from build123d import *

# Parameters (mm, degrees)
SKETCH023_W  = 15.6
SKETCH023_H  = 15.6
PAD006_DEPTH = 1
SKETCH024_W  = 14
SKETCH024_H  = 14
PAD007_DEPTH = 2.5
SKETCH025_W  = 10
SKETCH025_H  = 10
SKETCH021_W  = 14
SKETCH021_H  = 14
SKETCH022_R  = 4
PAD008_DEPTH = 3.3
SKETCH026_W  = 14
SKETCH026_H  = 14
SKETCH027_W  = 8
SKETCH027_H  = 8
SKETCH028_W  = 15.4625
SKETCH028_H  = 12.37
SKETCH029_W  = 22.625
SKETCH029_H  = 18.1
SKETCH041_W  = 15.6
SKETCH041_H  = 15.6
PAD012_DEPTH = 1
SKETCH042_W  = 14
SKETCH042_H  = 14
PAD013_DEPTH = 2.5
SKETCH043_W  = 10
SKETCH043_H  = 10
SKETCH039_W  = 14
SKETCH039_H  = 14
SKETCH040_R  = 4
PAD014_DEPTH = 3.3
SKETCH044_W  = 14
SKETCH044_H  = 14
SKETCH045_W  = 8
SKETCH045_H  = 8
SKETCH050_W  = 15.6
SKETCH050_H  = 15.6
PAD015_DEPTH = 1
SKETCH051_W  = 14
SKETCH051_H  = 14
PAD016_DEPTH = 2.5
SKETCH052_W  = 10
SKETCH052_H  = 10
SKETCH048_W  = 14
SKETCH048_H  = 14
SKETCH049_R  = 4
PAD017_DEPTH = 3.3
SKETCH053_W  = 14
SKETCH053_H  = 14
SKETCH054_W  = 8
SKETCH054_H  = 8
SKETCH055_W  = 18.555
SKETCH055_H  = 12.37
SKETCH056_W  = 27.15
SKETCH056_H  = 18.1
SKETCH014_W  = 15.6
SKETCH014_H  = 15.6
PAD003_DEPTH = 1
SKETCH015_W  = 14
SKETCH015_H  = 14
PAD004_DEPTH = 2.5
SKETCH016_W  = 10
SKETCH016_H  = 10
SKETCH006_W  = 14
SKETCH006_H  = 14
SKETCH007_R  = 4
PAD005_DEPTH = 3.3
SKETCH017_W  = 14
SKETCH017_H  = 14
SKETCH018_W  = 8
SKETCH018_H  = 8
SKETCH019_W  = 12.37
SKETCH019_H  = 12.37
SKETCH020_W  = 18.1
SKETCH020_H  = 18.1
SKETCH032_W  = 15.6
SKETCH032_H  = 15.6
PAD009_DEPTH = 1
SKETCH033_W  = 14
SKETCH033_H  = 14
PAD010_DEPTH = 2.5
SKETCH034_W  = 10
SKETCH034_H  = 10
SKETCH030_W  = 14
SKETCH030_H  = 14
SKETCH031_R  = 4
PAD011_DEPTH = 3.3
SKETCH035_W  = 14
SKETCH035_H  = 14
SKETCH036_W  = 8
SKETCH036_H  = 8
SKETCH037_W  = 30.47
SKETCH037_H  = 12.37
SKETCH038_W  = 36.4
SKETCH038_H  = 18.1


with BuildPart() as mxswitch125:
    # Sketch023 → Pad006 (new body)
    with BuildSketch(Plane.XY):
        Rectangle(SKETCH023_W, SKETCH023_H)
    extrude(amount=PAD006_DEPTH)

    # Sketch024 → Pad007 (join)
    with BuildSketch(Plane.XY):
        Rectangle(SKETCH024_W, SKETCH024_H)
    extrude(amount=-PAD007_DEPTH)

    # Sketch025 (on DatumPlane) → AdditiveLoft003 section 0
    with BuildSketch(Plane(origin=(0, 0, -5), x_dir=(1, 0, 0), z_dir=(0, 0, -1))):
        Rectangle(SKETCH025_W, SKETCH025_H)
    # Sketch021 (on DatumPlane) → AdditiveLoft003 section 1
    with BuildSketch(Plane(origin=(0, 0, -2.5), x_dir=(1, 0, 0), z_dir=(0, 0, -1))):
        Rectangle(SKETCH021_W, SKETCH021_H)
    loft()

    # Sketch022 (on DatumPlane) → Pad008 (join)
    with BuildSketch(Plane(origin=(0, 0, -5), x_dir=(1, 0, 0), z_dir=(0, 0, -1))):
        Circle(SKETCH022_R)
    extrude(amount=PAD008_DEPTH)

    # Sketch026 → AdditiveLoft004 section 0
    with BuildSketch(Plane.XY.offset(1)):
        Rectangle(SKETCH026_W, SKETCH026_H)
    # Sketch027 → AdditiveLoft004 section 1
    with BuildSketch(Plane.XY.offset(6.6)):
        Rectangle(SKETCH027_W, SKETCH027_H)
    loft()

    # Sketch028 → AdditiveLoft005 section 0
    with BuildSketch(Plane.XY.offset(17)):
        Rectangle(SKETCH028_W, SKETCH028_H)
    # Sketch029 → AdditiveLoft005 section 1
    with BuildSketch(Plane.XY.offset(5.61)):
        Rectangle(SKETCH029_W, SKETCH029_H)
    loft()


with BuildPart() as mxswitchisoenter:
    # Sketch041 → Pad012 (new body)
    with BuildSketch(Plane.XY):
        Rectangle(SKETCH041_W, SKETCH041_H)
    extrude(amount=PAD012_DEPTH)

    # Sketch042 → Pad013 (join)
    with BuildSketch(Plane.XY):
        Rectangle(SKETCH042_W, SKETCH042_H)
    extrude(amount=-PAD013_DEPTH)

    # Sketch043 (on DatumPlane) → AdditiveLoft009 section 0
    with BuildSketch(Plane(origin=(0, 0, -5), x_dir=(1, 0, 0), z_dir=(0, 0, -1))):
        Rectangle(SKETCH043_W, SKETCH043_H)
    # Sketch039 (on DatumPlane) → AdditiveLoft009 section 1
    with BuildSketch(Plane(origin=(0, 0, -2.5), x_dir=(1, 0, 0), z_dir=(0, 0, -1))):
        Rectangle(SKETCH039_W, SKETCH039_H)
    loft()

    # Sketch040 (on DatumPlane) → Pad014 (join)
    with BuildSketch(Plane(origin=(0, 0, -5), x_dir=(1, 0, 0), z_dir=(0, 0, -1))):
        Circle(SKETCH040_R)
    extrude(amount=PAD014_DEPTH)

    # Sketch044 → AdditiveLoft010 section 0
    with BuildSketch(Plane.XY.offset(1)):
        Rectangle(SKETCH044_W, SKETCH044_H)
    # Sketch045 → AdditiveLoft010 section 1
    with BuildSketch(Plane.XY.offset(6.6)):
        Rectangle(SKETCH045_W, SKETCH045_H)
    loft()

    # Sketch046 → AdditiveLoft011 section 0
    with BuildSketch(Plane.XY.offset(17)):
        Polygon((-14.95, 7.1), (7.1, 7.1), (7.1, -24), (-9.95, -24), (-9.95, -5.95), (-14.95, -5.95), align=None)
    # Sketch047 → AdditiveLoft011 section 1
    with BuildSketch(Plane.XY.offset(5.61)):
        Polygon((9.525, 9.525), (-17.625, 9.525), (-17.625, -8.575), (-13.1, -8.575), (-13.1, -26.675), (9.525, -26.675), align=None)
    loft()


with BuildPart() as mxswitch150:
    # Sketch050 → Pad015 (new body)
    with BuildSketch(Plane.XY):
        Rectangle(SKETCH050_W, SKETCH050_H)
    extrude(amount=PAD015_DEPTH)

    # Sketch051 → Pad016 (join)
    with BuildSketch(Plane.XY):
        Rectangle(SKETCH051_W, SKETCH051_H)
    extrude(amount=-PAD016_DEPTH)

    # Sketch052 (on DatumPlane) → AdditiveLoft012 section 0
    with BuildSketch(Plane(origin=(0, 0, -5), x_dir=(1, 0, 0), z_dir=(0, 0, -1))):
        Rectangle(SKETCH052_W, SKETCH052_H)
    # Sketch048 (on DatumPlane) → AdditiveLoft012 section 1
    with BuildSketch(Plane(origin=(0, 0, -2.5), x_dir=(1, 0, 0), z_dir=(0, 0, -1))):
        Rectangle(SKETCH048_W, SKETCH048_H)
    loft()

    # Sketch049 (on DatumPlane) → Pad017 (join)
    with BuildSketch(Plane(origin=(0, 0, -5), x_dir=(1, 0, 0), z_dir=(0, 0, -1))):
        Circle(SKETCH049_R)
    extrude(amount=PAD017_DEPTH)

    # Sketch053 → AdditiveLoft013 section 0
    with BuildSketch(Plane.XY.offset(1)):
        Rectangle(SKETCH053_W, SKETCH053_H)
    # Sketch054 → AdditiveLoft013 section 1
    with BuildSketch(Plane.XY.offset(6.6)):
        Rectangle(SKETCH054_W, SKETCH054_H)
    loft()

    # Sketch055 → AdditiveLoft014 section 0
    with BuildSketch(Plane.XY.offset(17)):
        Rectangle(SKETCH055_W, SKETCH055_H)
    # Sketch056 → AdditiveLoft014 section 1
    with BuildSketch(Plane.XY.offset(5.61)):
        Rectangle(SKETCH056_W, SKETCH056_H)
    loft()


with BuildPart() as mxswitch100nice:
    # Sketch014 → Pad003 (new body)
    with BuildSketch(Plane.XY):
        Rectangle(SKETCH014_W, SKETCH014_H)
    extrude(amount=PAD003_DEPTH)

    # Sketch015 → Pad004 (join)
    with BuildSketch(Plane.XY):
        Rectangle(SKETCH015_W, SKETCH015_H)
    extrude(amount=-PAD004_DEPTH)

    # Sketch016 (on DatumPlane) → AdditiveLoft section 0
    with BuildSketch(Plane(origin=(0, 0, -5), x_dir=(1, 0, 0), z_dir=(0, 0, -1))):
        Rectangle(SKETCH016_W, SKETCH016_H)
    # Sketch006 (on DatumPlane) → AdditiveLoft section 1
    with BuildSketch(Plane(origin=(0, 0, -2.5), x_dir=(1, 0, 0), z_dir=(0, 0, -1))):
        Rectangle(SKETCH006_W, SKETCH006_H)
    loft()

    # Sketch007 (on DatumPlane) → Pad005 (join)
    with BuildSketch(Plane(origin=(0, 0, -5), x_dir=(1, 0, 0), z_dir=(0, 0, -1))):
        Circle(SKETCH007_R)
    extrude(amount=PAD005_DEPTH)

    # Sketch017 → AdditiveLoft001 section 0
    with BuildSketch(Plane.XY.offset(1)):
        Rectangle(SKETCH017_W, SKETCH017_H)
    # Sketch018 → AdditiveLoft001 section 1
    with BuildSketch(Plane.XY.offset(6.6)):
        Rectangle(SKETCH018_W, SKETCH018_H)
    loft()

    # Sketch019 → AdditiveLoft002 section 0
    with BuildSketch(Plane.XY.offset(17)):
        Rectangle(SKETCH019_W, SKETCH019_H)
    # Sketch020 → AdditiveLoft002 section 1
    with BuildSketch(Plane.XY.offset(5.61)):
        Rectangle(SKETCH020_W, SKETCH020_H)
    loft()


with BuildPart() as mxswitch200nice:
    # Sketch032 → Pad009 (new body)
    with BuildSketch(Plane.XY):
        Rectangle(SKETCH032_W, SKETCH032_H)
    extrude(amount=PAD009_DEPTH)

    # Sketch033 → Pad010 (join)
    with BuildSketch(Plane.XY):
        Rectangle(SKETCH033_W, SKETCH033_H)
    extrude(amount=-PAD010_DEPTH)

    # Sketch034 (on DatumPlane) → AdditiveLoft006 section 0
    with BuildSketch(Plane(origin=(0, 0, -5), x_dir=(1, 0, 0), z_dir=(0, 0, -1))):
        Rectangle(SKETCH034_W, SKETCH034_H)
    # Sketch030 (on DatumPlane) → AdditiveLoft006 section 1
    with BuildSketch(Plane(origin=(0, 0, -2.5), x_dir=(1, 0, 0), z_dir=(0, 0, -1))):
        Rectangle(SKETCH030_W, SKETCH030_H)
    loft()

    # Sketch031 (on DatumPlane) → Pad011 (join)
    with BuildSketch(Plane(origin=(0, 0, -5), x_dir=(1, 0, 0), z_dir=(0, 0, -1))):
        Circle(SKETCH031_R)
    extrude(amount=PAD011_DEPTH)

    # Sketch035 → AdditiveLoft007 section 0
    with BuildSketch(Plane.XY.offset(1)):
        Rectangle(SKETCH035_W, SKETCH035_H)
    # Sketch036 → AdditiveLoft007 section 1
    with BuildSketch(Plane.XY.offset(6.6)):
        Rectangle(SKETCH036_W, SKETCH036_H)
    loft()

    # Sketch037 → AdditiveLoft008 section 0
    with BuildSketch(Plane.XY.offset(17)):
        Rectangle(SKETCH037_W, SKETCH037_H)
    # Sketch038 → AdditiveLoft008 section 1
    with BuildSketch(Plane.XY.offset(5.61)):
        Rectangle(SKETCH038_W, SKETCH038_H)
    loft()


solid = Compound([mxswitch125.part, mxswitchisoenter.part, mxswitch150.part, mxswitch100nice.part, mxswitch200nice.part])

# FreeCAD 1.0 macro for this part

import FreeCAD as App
import Part
import Sketcher
from FreeCAD import Vector


def add_polygon(sketch, points):
    """Adds a closed chain of lines whose ends are joined by coincident constraints."""
    first, n = sketch.GeometryCount, len(points)
    for a, b in zip(points, points[1:] + points[:1]):
        sketch.addGeometry(Part.LineSegment(App.Vector(*a, 0), App.Vector(*b, 0)), False)
    for i in range(n):
        sketch.addConstraint(Sketcher.Constraint("Coincident", first + i, 2, first + (i + 1) % n, 1))

doc = App.newDocument("Part")
body = doc.addObject("PartDesign::Body", "Body")

sketch1 = body.newObject("Sketcher::SketchObject", "Sketch")
sketch1.AttachmentSupport = (doc.getObject("XY_Plane"), [""])
sketch1.MapMode = "FlatFace"
add_polygon(sketch1, [(-8, 8), (-8, -8), (8, -8), (8, 8)])
sketch1.addConstraint(Sketcher.Constraint("Vertical", 0))
sketch1.addConstraint(Sketcher.Constraint("Horizontal", 1))
sketch1.addConstraint(Sketcher.Constraint("Vertical", 2))
sketch1.addConstraint(Sketcher.Constraint("Horizontal", 3))
sketch1.addConstraint(Sketcher.Constraint("Symmetric", 0, 2, 2, 2, -1, 1))
sketch1.addConstraint(Sketcher.Constraint("Equal", 3, 0))
sketch1.addConstraint(Sketcher.Constraint("DistanceX", 1, 1, 1, 2, 15.6))
pad1 = body.newObject("PartDesign::Pad", "Pad")
pad1.Profile = sketch1
pad1.Length = 1

sketch2 = body.newObject("Sketcher::SketchObject", "Sketch001")
sketch2.AttachmentSupport = (doc.getObject("XY_Plane"), [""])
sketch2.MapMode = "FlatFace"
add_polygon(sketch2, [(-7, 7), (-7, -7), (7, -7), (7, 7)])
sketch2.addConstraint(Sketcher.Constraint("Vertical", 0))
sketch2.addConstraint(Sketcher.Constraint("Horizontal", 1))
sketch2.addConstraint(Sketcher.Constraint("Vertical", 2))
sketch2.addConstraint(Sketcher.Constraint("Horizontal", 3))
sketch2.addConstraint(Sketcher.Constraint("Symmetric", 0, 2, 2, 2, -1, 1))
sketch2.addConstraint(Sketcher.Constraint("Equal", 3, 0))
sketch2.addConstraint(Sketcher.Constraint("DistanceX", 1, 1, 1, 2, 14.0))
pad2 = body.newObject("PartDesign::Pad", "Pad001")
pad2.Profile = sketch2
pad2.Length = 2.5
pad2.Reversed = True

sketch3 = body.newObject("Sketcher::SketchObject", "Sketch002")
sketch3.AttachmentSupport = (doc.getObject("XY_Plane"), [""])
sketch3.MapMode = "FlatFace"
sketch3.AttachmentOffset = App.Placement(Vector(0, 0, -5), App.Rotation())
add_polygon(sketch3, [(-5, -5), (-5, 5), (5, 5), (5, -5)])
sketch3.addConstraint(Sketcher.Constraint("Vertical", 0))
sketch3.addConstraint(Sketcher.Constraint("Horizontal", 1))
sketch3.addConstraint(Sketcher.Constraint("Vertical", 2))
sketch3.addConstraint(Sketcher.Constraint("Horizontal", 3))
sketch3.addConstraint(Sketcher.Constraint("Symmetric", 0, 2, 2, 2, -1, 1))
sketch3.addConstraint(Sketcher.Constraint("Equal", 3, 0))
sketch3.addConstraint(Sketcher.Constraint("DistanceX", 1, 1, 1, 2, 10.0))

sketch4 = body.newObject("Sketcher::SketchObject", "Sketch003")
sketch4.AttachmentSupport = (doc.getObject("XY_Plane"), [""])
sketch4.MapMode = "FlatFace"
sketch4.AttachmentOffset = App.Placement(Vector(0, 0, -2.5), App.Rotation())
add_polygon(sketch4, [(-7, -7), (-7, 7), (7, 7), (7, -7)])
sketch4.addConstraint(Sketcher.Constraint("Vertical", 0))
sketch4.addConstraint(Sketcher.Constraint("Horizontal", 1))
sketch4.addConstraint(Sketcher.Constraint("Vertical", 2))
sketch4.addConstraint(Sketcher.Constraint("Horizontal", 3))
sketch4.addConstraint(Sketcher.Constraint("Symmetric", 0, 2, 2, 2, -1, 1))
sketch4.addConstraint(Sketcher.Constraint("Equal", 3, 0))
sketch4.addConstraint(Sketcher.Constraint("DistanceX", 1, 1, 1, 2, 14.0))

additiveloft = body.newObject("PartDesign::AdditiveLoft", "AdditiveLoft")
additiveloft.Profile = sketch3
additiveloft.Sections = [sketch4]

sketch5 = body.newObject("Sketcher::SketchObject", "Sketch004")
sketch5.AttachmentSupport = (doc.getObject("XY_Plane"), [""])
sketch5.MapMode = "FlatFace"
sketch5.AttachmentOffset = App.Placement(Vector(0, 0, -5), App.Rotation())
sketch5.addGeometry(Part.Circle(Vector(0, 0, 0), Vector(0, 0, 1), 4), False)
sketch5.addConstraint(Sketcher.Constraint("Coincident", 0, 3, -1, 1))
sketch5.addConstraint(Sketcher.Constraint("Diameter", 0, 8.0))
pad3 = body.newObject("PartDesign::Pad", "Pad002")
pad3.Profile = sketch5
pad3.Length = 3.3
pad3.Reversed = True

sketch6 = body.newObject("Sketcher::SketchObject", "Sketch005")
sketch6.AttachmentSupport = (doc.getObject("XY_Plane"), [""])
sketch6.MapMode = "FlatFace"
sketch6.AttachmentOffset = App.Placement(Vector(0, 0, 1), App.Rotation())
add_polygon(sketch6, [(-7, 7), (-7, -7), (7, -7), (7, 7)])
sketch6.addConstraint(Sketcher.Constraint("Vertical", 0))
sketch6.addConstraint(Sketcher.Constraint("Horizontal", 1))
sketch6.addConstraint(Sketcher.Constraint("Vertical", 2))
sketch6.addConstraint(Sketcher.Constraint("Horizontal", 3))
sketch6.addConstraint(Sketcher.Constraint("Symmetric", 0, 2, 2, 2, -1, 1))
sketch6.addConstraint(Sketcher.Constraint("Equal", 3, 0))
sketch6.addConstraint(Sketcher.Constraint("DistanceX", 1, 1, 1, 2, 14.0))

sketch7 = body.newObject("Sketcher::SketchObject", "Sketch006")
sketch7.AttachmentSupport = (doc.getObject("XY_Plane"), [""])
sketch7.MapMode = "FlatFace"
sketch7.AttachmentOffset = App.Placement(Vector(0, 0, 6.6), App.Rotation())
add_polygon(sketch7, [(-4, 4), (-4, -4), (4, -4), (4, 4)])
sketch7.addConstraint(Sketcher.Constraint("Vertical", 0))
sketch7.addConstraint(Sketcher.Constraint("Horizontal", 1))
sketch7.addConstraint(Sketcher.Constraint("Vertical", 2))
sketch7.addConstraint(Sketcher.Constraint("Horizontal", 3))
sketch7.addConstraint(Sketcher.Constraint("Symmetric", 0, 2, 2, 2, -1, 1))
sketch7.addConstraint(Sketcher.Constraint("Equal", 3, 0))
sketch7.addConstraint(Sketcher.Constraint("DistanceX", 1, 1, 1, 2, 8.0))

additiveloft2 = body.newObject("PartDesign::AdditiveLoft", "AdditiveLoft001")
additiveloft2.Profile = sketch6
additiveloft2.Sections = [sketch7]

sketch8 = body.newObject("Sketcher::SketchObject", "Sketch007")
sketch8.AttachmentSupport = (doc.getObject("XY_Plane"), [""])
sketch8.MapMode = "FlatFace"
sketch8.AttachmentOffset = App.Placement(Vector(0, 0, 17), App.Rotation())
add_polygon(sketch8, [(-8, 6), (-8, -6), (8, -6), (8, 6)])
sketch8.addConstraint(Sketcher.Constraint("Vertical", 0))
sketch8.addConstraint(Sketcher.Constraint("Horizontal", 1))
sketch8.addConstraint(Sketcher.Constraint("Vertical", 2))
sketch8.addConstraint(Sketcher.Constraint("Horizontal", 3))
sketch8.addConstraint(Sketcher.Constraint("Symmetric", 0, 2, 2, 2, -1, 1))
sketch8.addConstraint(Sketcher.Constraint("DistanceY", 0, 2, 0, 1, 12.37))
sketch8.addConstraint(Sketcher.Constraint("DistanceX", 1, 1, 1, 2, 15.4625))

sketch9 = body.newObject("Sketcher::SketchObject", "Sketch008")
sketch9.AttachmentSupport = (doc.getObject("XY_Plane"), [""])
sketch9.MapMode = "FlatFace"
sketch9.AttachmentOffset = App.Placement(Vector(0, 0, 5.61), App.Rotation())
add_polygon(sketch9, [(-11, 9), (-11, -9), (11, -9), (11, 9)])
sketch9.addConstraint(Sketcher.Constraint("Vertical", 0))
sketch9.addConstraint(Sketcher.Constraint("Horizontal", 1))
sketch9.addConstraint(Sketcher.Constraint("Vertical", 2))
sketch9.addConstraint(Sketcher.Constraint("Horizontal", 3))
sketch9.addConstraint(Sketcher.Constraint("Symmetric", 0, 2, 2, 2, -1, 1))
sketch9.addConstraint(Sketcher.Constraint("DistanceY", 0, 2, 0, 1, 18.1))
sketch9.addConstraint(Sketcher.Constraint("DistanceX", 1, 1, 1, 2, 22.625))

additiveloft3 = body.newObject("PartDesign::AdditiveLoft", "AdditiveLoft002")
additiveloft3.Profile = sketch8
additiveloft3.Sections = [sketch9]
body2 = doc.addObject("PartDesign::Body", "Body001")

sketch10 = body2.newObject("Sketcher::SketchObject", "Sketch009")
sketch10.AttachmentSupport = (doc.getObject("XY_Plane001"), [""])
sketch10.MapMode = "FlatFace"
add_polygon(sketch10, [(-8, 8), (-8, -8), (8, -8), (8, 8)])
sketch10.addConstraint(Sketcher.Constraint("Vertical", 0))
sketch10.addConstraint(Sketcher.Constraint("Horizontal", 1))
sketch10.addConstraint(Sketcher.Constraint("Vertical", 2))
sketch10.addConstraint(Sketcher.Constraint("Horizontal", 3))
sketch10.addConstraint(Sketcher.Constraint("Symmetric", 0, 2, 2, 2, -1, 1))
sketch10.addConstraint(Sketcher.Constraint("Equal", 3, 0))
sketch10.addConstraint(Sketcher.Constraint("DistanceX", 1, 1, 1, 2, 15.6))
pad4 = body2.newObject("PartDesign::Pad", "Pad003")
pad4.Profile = sketch10
pad4.Length = 1

sketch11 = body2.newObject("Sketcher::SketchObject", "Sketch010")
sketch11.AttachmentSupport = (doc.getObject("XY_Plane001"), [""])
sketch11.MapMode = "FlatFace"
add_polygon(sketch11, [(-7, 7), (-7, -7), (7, -7), (7, 7)])
sketch11.addConstraint(Sketcher.Constraint("Vertical", 0))
sketch11.addConstraint(Sketcher.Constraint("Horizontal", 1))
sketch11.addConstraint(Sketcher.Constraint("Vertical", 2))
sketch11.addConstraint(Sketcher.Constraint("Horizontal", 3))
sketch11.addConstraint(Sketcher.Constraint("Symmetric", 0, 2, 2, 2, -1, 1))
sketch11.addConstraint(Sketcher.Constraint("Equal", 3, 0))
sketch11.addConstraint(Sketcher.Constraint("DistanceX", 1, 1, 1, 2, 14.0))
pad5 = body2.newObject("PartDesign::Pad", "Pad004")
pad5.Profile = sketch11
pad5.Length = 2.5
pad5.Reversed = True

sketch12 = body2.newObject("Sketcher::SketchObject", "Sketch011")
sketch12.AttachmentSupport = (doc.getObject("XY_Plane001"), [""])
sketch12.MapMode = "FlatFace"
sketch12.AttachmentOffset = App.Placement(Vector(0, 0, -5), App.Rotation())
add_polygon(sketch12, [(-5, -5), (-5, 5), (5, 5), (5, -5)])
sketch12.addConstraint(Sketcher.Constraint("Vertical", 0))
sketch12.addConstraint(Sketcher.Constraint("Horizontal", 1))
sketch12.addConstraint(Sketcher.Constraint("Vertical", 2))
sketch12.addConstraint(Sketcher.Constraint("Horizontal", 3))
sketch12.addConstraint(Sketcher.Constraint("Symmetric", 0, 2, 2, 2, -1, 1))
sketch12.addConstraint(Sketcher.Constraint("Equal", 3, 0))
sketch12.addConstraint(Sketcher.Constraint("DistanceX", 1, 1, 1, 2, 10.0))

sketch13 = body2.newObject("Sketcher::SketchObject", "Sketch012")
sketch13.AttachmentSupport = (doc.getObject("XY_Plane001"), [""])
sketch13.MapMode = "FlatFace"
sketch13.AttachmentOffset = App.Placement(Vector(0, 0, -2.5), App.Rotation())
add_polygon(sketch13, [(-7, -7), (-7, 7), (7, 7), (7, -7)])
sketch13.addConstraint(Sketcher.Constraint("Vertical", 0))
sketch13.addConstraint(Sketcher.Constraint("Horizontal", 1))
sketch13.addConstraint(Sketcher.Constraint("Vertical", 2))
sketch13.addConstraint(Sketcher.Constraint("Horizontal", 3))
sketch13.addConstraint(Sketcher.Constraint("Symmetric", 0, 2, 2, 2, -1, 1))
sketch13.addConstraint(Sketcher.Constraint("Equal", 3, 0))
sketch13.addConstraint(Sketcher.Constraint("DistanceX", 1, 1, 1, 2, 14.0))

additiveloft4 = body2.newObject("PartDesign::AdditiveLoft", "AdditiveLoft003")
additiveloft4.Profile = sketch12
additiveloft4.Sections = [sketch13]

sketch14 = body2.newObject("Sketcher::SketchObject", "Sketch013")
sketch14.AttachmentSupport = (doc.getObject("XY_Plane001"), [""])
sketch14.MapMode = "FlatFace"
sketch14.AttachmentOffset = App.Placement(Vector(0, 0, -5), App.Rotation())
sketch14.addGeometry(Part.Circle(Vector(0, 0, 0), Vector(0, 0, 1), 4), False)
sketch14.addConstraint(Sketcher.Constraint("Coincident", 0, 3, -1, 1))
sketch14.addConstraint(Sketcher.Constraint("Diameter", 0, 8.0))
pad6 = body2.newObject("PartDesign::Pad", "Pad005")
pad6.Profile = sketch14
pad6.Length = 3.3
pad6.Reversed = True

sketch15 = body2.newObject("Sketcher::SketchObject", "Sketch014")
sketch15.AttachmentSupport = (doc.getObject("XY_Plane001"), [""])
sketch15.MapMode = "FlatFace"
sketch15.AttachmentOffset = App.Placement(Vector(0, 0, 1), App.Rotation())
add_polygon(sketch15, [(-7, 7), (-7, -7), (7, -7), (7, 7)])
sketch15.addConstraint(Sketcher.Constraint("Vertical", 0))
sketch15.addConstraint(Sketcher.Constraint("Horizontal", 1))
sketch15.addConstraint(Sketcher.Constraint("Vertical", 2))
sketch15.addConstraint(Sketcher.Constraint("Horizontal", 3))
sketch15.addConstraint(Sketcher.Constraint("Symmetric", 0, 2, 2, 2, -1, 1))
sketch15.addConstraint(Sketcher.Constraint("Equal", 3, 0))
sketch15.addConstraint(Sketcher.Constraint("DistanceX", 1, 1, 1, 2, 14.0))

sketch16 = body2.newObject("Sketcher::SketchObject", "Sketch015")
sketch16.AttachmentSupport = (doc.getObject("XY_Plane001"), [""])
sketch16.MapMode = "FlatFace"
sketch16.AttachmentOffset = App.Placement(Vector(0, 0, 6.6), App.Rotation())
add_polygon(sketch16, [(-4, 4), (-4, -4), (4, -4), (4, 4)])
sketch16.addConstraint(Sketcher.Constraint("Vertical", 0))
sketch16.addConstraint(Sketcher.Constraint("Horizontal", 1))
sketch16.addConstraint(Sketcher.Constraint("Vertical", 2))
sketch16.addConstraint(Sketcher.Constraint("Horizontal", 3))
sketch16.addConstraint(Sketcher.Constraint("Symmetric", 0, 2, 2, 2, -1, 1))
sketch16.addConstraint(Sketcher.Constraint("Equal", 3, 0))
sketch16.addConstraint(Sketcher.Constraint("DistanceX", 1, 1, 1, 2, 8.0))

additiveloft5 = body2.newObject("PartDesign::AdditiveLoft", "AdditiveLoft004")
additiveloft5.Profile = sketch15
additiveloft5.Sections = [sketch16]

sketch17 = body2.newObject("Sketcher::SketchObject", "Sketch016")
sketch17.AttachmentSupport = (doc.getObject("XY_Plane001"), [""])
sketch17.MapMode = "FlatFace"
sketch17.AttachmentOffset = App.Placement(Vector(0, 0, 17), App.Rotation())
add_polygon(sketch17, [(7, 7), (-15, 7), (-15, -6), (-10, -6), (-10, -24), (7, -24)])
sketch17.addConstraint(Sketcher.Constraint("Horizontal", 0))
sketch17.addConstraint(Sketcher.Constraint("Vertical", 1))
sketch17.addConstraint(Sketcher.Constraint("Horizontal", 2))
sketch17.addConstraint(Sketcher.Constraint("Vertical", 3))
sketch17.addConstraint(Sketcher.Constraint("Horizontal", 4))
sketch17.addConstraint(Sketcher.Constraint("Vertical", 5))
sketch17.addConstraint(Sketcher.Constraint("DistanceX", 2, 1, 2, 2, 5.0))
sketch17.addConstraint(Sketcher.Constraint("DistanceY", 5, 1, 5, 2, 31.1))
sketch17.addConstraint(Sketcher.Constraint("DistanceY", 3, 2, -1, 1, 24.0))
sketch17.addConstraint(Sketcher.Constraint("DistanceX", 0, 2, 0, 1, 22.05))
sketch17.addConstraint(Sketcher.Constraint("DistanceY", 1, 2, 1, 1, 13.05))
sketch17.addConstraint(Sketcher.Constraint("DistanceX", -1, 1, 4, 2, 7.1))

sketch18 = body2.newObject("Sketcher::SketchObject", "Sketch017")
sketch18.AttachmentSupport = (doc.getObject("XY_Plane001"), [""])
sketch18.MapMode = "FlatFace"
sketch18.AttachmentOffset = App.Placement(Vector(0, 0, 5.61), App.Rotation())
add_polygon(sketch18, [(9.5, 9.5), (-17.6, 9.5), (-17.6, -8.6), (-13.1, -8.6), (-13.1, -26.7), (9.5, -26.7)])
sketch18.addConstraint(Sketcher.Constraint("Horizontal", 0))
sketch18.addConstraint(Sketcher.Constraint("Vertical", 1))
sketch18.addConstraint(Sketcher.Constraint("Horizontal", 2))
sketch18.addConstraint(Sketcher.Constraint("Vertical", 3))
sketch18.addConstraint(Sketcher.Constraint("Horizontal", 4))
sketch18.addConstraint(Sketcher.Constraint("Vertical", 5))
sketch18.addConstraint(Sketcher.Constraint("Equal", 1, 3))
sketch18.addConstraint(Sketcher.Constraint("DistanceY", 1, 2, 1, 1, 18.1))
sketch18.addConstraint(Sketcher.Constraint("DistanceX", 0, 2, 0, 1, 27.15))
sketch18.addConstraint(Sketcher.Constraint("DistanceX", 2, 2, -1, 1, 13.1))
sketch18.addConstraint(Sketcher.Constraint("DistanceX", 2, 1, 2, 2, 4.525))
sketch18.addConstraint(Sketcher.Constraint("DistanceY", -1, 1, 0, 2, 9.525))

additiveloft6 = body2.newObject("PartDesign::AdditiveLoft", "AdditiveLoft005")
additiveloft6.Profile = sketch17
additiveloft6.Sections = [sketch18]
body3 = doc.addObject("PartDesign::Body", "Body002")

sketch19 = body3.newObject("Sketcher::SketchObject", "Sketch018")
sketch19.AttachmentSupport = (doc.getObject("XY_Plane002"), [""])
sketch19.MapMode = "FlatFace"
add_polygon(sketch19, [(-8, 8), (-8, -8), (8, -8), (8, 8)])
sketch19.addConstraint(Sketcher.Constraint("Vertical", 0))
sketch19.addConstraint(Sketcher.Constraint("Horizontal", 1))
sketch19.addConstraint(Sketcher.Constraint("Vertical", 2))
sketch19.addConstraint(Sketcher.Constraint("Horizontal", 3))
sketch19.addConstraint(Sketcher.Constraint("Symmetric", 0, 2, 2, 2, -1, 1))
sketch19.addConstraint(Sketcher.Constraint("Equal", 3, 0))
sketch19.addConstraint(Sketcher.Constraint("DistanceX", 1, 1, 1, 2, 15.6))
pad7 = body3.newObject("PartDesign::Pad", "Pad006")
pad7.Profile = sketch19
pad7.Length = 1

sketch20 = body3.newObject("Sketcher::SketchObject", "Sketch019")
sketch20.AttachmentSupport = (doc.getObject("XY_Plane002"), [""])
sketch20.MapMode = "FlatFace"
add_polygon(sketch20, [(-7, 7), (-7, -7), (7, -7), (7, 7)])
sketch20.addConstraint(Sketcher.Constraint("Vertical", 0))
sketch20.addConstraint(Sketcher.Constraint("Horizontal", 1))
sketch20.addConstraint(Sketcher.Constraint("Vertical", 2))
sketch20.addConstraint(Sketcher.Constraint("Horizontal", 3))
sketch20.addConstraint(Sketcher.Constraint("Symmetric", 0, 2, 2, 2, -1, 1))
sketch20.addConstraint(Sketcher.Constraint("Equal", 3, 0))
sketch20.addConstraint(Sketcher.Constraint("DistanceX", 1, 1, 1, 2, 14.0))
pad8 = body3.newObject("PartDesign::Pad", "Pad007")
pad8.Profile = sketch20
pad8.Length = 2.5
pad8.Reversed = True

sketch21 = body3.newObject("Sketcher::SketchObject", "Sketch020")
sketch21.AttachmentSupport = (doc.getObject("XY_Plane002"), [""])
sketch21.MapMode = "FlatFace"
sketch21.AttachmentOffset = App.Placement(Vector(0, 0, -5), App.Rotation())
add_polygon(sketch21, [(-5, -5), (-5, 5), (5, 5), (5, -5)])
sketch21.addConstraint(Sketcher.Constraint("Vertical", 0))
sketch21.addConstraint(Sketcher.Constraint("Horizontal", 1))
sketch21.addConstraint(Sketcher.Constraint("Vertical", 2))
sketch21.addConstraint(Sketcher.Constraint("Horizontal", 3))
sketch21.addConstraint(Sketcher.Constraint("Symmetric", 0, 2, 2, 2, -1, 1))
sketch21.addConstraint(Sketcher.Constraint("Equal", 3, 0))
sketch21.addConstraint(Sketcher.Constraint("DistanceX", 1, 1, 1, 2, 10.0))

sketch22 = body3.newObject("Sketcher::SketchObject", "Sketch021")
sketch22.AttachmentSupport = (doc.getObject("XY_Plane002"), [""])
sketch22.MapMode = "FlatFace"
sketch22.AttachmentOffset = App.Placement(Vector(0, 0, -2.5), App.Rotation())
add_polygon(sketch22, [(-7, -7), (-7, 7), (7, 7), (7, -7)])
sketch22.addConstraint(Sketcher.Constraint("Vertical", 0))
sketch22.addConstraint(Sketcher.Constraint("Horizontal", 1))
sketch22.addConstraint(Sketcher.Constraint("Vertical", 2))
sketch22.addConstraint(Sketcher.Constraint("Horizontal", 3))
sketch22.addConstraint(Sketcher.Constraint("Symmetric", 0, 2, 2, 2, -1, 1))
sketch22.addConstraint(Sketcher.Constraint("Equal", 3, 0))
sketch22.addConstraint(Sketcher.Constraint("DistanceX", 1, 1, 1, 2, 14.0))

additiveloft7 = body3.newObject("PartDesign::AdditiveLoft", "AdditiveLoft006")
additiveloft7.Profile = sketch21
additiveloft7.Sections = [sketch22]

sketch23 = body3.newObject("Sketcher::SketchObject", "Sketch022")
sketch23.AttachmentSupport = (doc.getObject("XY_Plane002"), [""])
sketch23.MapMode = "FlatFace"
sketch23.AttachmentOffset = App.Placement(Vector(0, 0, -5), App.Rotation())
sketch23.addGeometry(Part.Circle(Vector(0, 0, 0), Vector(0, 0, 1), 4), False)
sketch23.addConstraint(Sketcher.Constraint("Coincident", 0, 3, -1, 1))
sketch23.addConstraint(Sketcher.Constraint("Diameter", 0, 8.0))
pad9 = body3.newObject("PartDesign::Pad", "Pad008")
pad9.Profile = sketch23
pad9.Length = 3.3
pad9.Reversed = True

sketch24 = body3.newObject("Sketcher::SketchObject", "Sketch023")
sketch24.AttachmentSupport = (doc.getObject("XY_Plane002"), [""])
sketch24.MapMode = "FlatFace"
sketch24.AttachmentOffset = App.Placement(Vector(0, 0, 1), App.Rotation())
add_polygon(sketch24, [(-7, 7), (-7, -7), (7, -7), (7, 7)])
sketch24.addConstraint(Sketcher.Constraint("Vertical", 0))
sketch24.addConstraint(Sketcher.Constraint("Horizontal", 1))
sketch24.addConstraint(Sketcher.Constraint("Vertical", 2))
sketch24.addConstraint(Sketcher.Constraint("Horizontal", 3))
sketch24.addConstraint(Sketcher.Constraint("Symmetric", 0, 2, 2, 2, -1, 1))
sketch24.addConstraint(Sketcher.Constraint("Equal", 3, 0))
sketch24.addConstraint(Sketcher.Constraint("DistanceX", 1, 1, 1, 2, 14.0))

sketch25 = body3.newObject("Sketcher::SketchObject", "Sketch024")
sketch25.AttachmentSupport = (doc.getObject("XY_Plane002"), [""])
sketch25.MapMode = "FlatFace"
sketch25.AttachmentOffset = App.Placement(Vector(0, 0, 6.6), App.Rotation())
add_polygon(sketch25, [(-4, 4), (-4, -4), (4, -4), (4, 4)])
sketch25.addConstraint(Sketcher.Constraint("Vertical", 0))
sketch25.addConstraint(Sketcher.Constraint("Horizontal", 1))
sketch25.addConstraint(Sketcher.Constraint("Vertical", 2))
sketch25.addConstraint(Sketcher.Constraint("Horizontal", 3))
sketch25.addConstraint(Sketcher.Constraint("Symmetric", 0, 2, 2, 2, -1, 1))
sketch25.addConstraint(Sketcher.Constraint("Equal", 3, 0))
sketch25.addConstraint(Sketcher.Constraint("DistanceX", 1, 1, 1, 2, 8.0))

additiveloft8 = body3.newObject("PartDesign::AdditiveLoft", "AdditiveLoft007")
additiveloft8.Profile = sketch24
additiveloft8.Sections = [sketch25]

sketch26 = body3.newObject("Sketcher::SketchObject", "Sketch025")
sketch26.AttachmentSupport = (doc.getObject("XY_Plane002"), [""])
sketch26.MapMode = "FlatFace"
sketch26.AttachmentOffset = App.Placement(Vector(0, 0, 17), App.Rotation())
add_polygon(sketch26, [(-9, 6), (-9, -6), (9, -6), (9, 6)])
sketch26.addConstraint(Sketcher.Constraint("Vertical", 0))
sketch26.addConstraint(Sketcher.Constraint("Horizontal", 1))
sketch26.addConstraint(Sketcher.Constraint("Vertical", 2))
sketch26.addConstraint(Sketcher.Constraint("Horizontal", 3))
sketch26.addConstraint(Sketcher.Constraint("Symmetric", 0, 2, 2, 2, -1, 1))
sketch26.addConstraint(Sketcher.Constraint("DistanceY", 0, 2, 0, 1, 12.37))
sketch26.addConstraint(Sketcher.Constraint("DistanceX", 1, 1, 1, 2, 18.555))

sketch27 = body3.newObject("Sketcher::SketchObject", "Sketch026")
sketch27.AttachmentSupport = (doc.getObject("XY_Plane002"), [""])
sketch27.MapMode = "FlatFace"
sketch27.AttachmentOffset = App.Placement(Vector(0, 0, 5.61), App.Rotation())
add_polygon(sketch27, [(-14, 9), (-14, -9), (14, -9), (14, 9)])
sketch27.addConstraint(Sketcher.Constraint("Vertical", 0))
sketch27.addConstraint(Sketcher.Constraint("Horizontal", 1))
sketch27.addConstraint(Sketcher.Constraint("Vertical", 2))
sketch27.addConstraint(Sketcher.Constraint("Horizontal", 3))
sketch27.addConstraint(Sketcher.Constraint("Symmetric", 0, 2, 2, 2, -1, 1))
sketch27.addConstraint(Sketcher.Constraint("DistanceY", 0, 2, 0, 1, 18.1))
sketch27.addConstraint(Sketcher.Constraint("DistanceX", 1, 1, 1, 2, 27.15))

additiveloft9 = body3.newObject("PartDesign::AdditiveLoft", "AdditiveLoft008")
additiveloft9.Profile = sketch26
additiveloft9.Sections = [sketch27]
body4 = doc.addObject("PartDesign::Body", "Body003")

sketch28 = body4.newObject("Sketcher::SketchObject", "Sketch027")
sketch28.AttachmentSupport = (doc.getObject("XY_Plane003"), [""])
sketch28.MapMode = "FlatFace"
add_polygon(sketch28, [(-8, 8), (-8, -8), (8, -8), (8, 8)])
sketch28.addConstraint(Sketcher.Constraint("Vertical", 0))
sketch28.addConstraint(Sketcher.Constraint("Horizontal", 1))
sketch28.addConstraint(Sketcher.Constraint("Vertical", 2))
sketch28.addConstraint(Sketcher.Constraint("Horizontal", 3))
sketch28.addConstraint(Sketcher.Constraint("Symmetric", 0, 2, 2, 2, -1, 1))
sketch28.addConstraint(Sketcher.Constraint("Equal", 3, 0))
sketch28.addConstraint(Sketcher.Constraint("DistanceX", 1, 1, 1, 2, 15.6))
pad10 = body4.newObject("PartDesign::Pad", "Pad009")
pad10.Profile = sketch28
pad10.Length = 1

sketch29 = body4.newObject("Sketcher::SketchObject", "Sketch028")
sketch29.AttachmentSupport = (doc.getObject("XY_Plane003"), [""])
sketch29.MapMode = "FlatFace"
add_polygon(sketch29, [(-7, 7), (-7, -7), (7, -7), (7, 7)])
sketch29.addConstraint(Sketcher.Constraint("Vertical", 0))
sketch29.addConstraint(Sketcher.Constraint("Horizontal", 1))
sketch29.addConstraint(Sketcher.Constraint("Vertical", 2))
sketch29.addConstraint(Sketcher.Constraint("Horizontal", 3))
sketch29.addConstraint(Sketcher.Constraint("Symmetric", 0, 2, 2, 2, -1, 1))
sketch29.addConstraint(Sketcher.Constraint("Equal", 3, 0))
sketch29.addConstraint(Sketcher.Constraint("DistanceX", 1, 1, 1, 2, 14.0))
pad11 = body4.newObject("PartDesign::Pad", "Pad010")
pad11.Profile = sketch29
pad11.Length = 2.5
pad11.Reversed = True

sketch30 = body4.newObject("Sketcher::SketchObject", "Sketch029")
sketch30.AttachmentSupport = (doc.getObject("XY_Plane003"), [""])
sketch30.MapMode = "FlatFace"
sketch30.AttachmentOffset = App.Placement(Vector(0, 0, -5), App.Rotation())
add_polygon(sketch30, [(-5, -5), (-5, 5), (5, 5), (5, -5)])
sketch30.addConstraint(Sketcher.Constraint("Vertical", 0))
sketch30.addConstraint(Sketcher.Constraint("Horizontal", 1))
sketch30.addConstraint(Sketcher.Constraint("Vertical", 2))
sketch30.addConstraint(Sketcher.Constraint("Horizontal", 3))
sketch30.addConstraint(Sketcher.Constraint("Symmetric", 0, 2, 2, 2, -1, 1))
sketch30.addConstraint(Sketcher.Constraint("Equal", 3, 0))
sketch30.addConstraint(Sketcher.Constraint("DistanceX", 1, 1, 1, 2, 10.0))

sketch31 = body4.newObject("Sketcher::SketchObject", "Sketch030")
sketch31.AttachmentSupport = (doc.getObject("XY_Plane003"), [""])
sketch31.MapMode = "FlatFace"
sketch31.AttachmentOffset = App.Placement(Vector(0, 0, -2.5), App.Rotation())
add_polygon(sketch31, [(-7, -7), (-7, 7), (7, 7), (7, -7)])
sketch31.addConstraint(Sketcher.Constraint("Vertical", 0))
sketch31.addConstraint(Sketcher.Constraint("Horizontal", 1))
sketch31.addConstraint(Sketcher.Constraint("Vertical", 2))
sketch31.addConstraint(Sketcher.Constraint("Horizontal", 3))
sketch31.addConstraint(Sketcher.Constraint("Symmetric", 0, 2, 2, 2, -1, 1))
sketch31.addConstraint(Sketcher.Constraint("Equal", 3, 0))
sketch31.addConstraint(Sketcher.Constraint("DistanceX", 1, 1, 1, 2, 14.0))

additiveloft10 = body4.newObject("PartDesign::AdditiveLoft", "AdditiveLoft009")
additiveloft10.Profile = sketch30
additiveloft10.Sections = [sketch31]

sketch32 = body4.newObject("Sketcher::SketchObject", "Sketch031")
sketch32.AttachmentSupport = (doc.getObject("XY_Plane003"), [""])
sketch32.MapMode = "FlatFace"
sketch32.AttachmentOffset = App.Placement(Vector(0, 0, -5), App.Rotation())
sketch32.addGeometry(Part.Circle(Vector(0, 0, 0), Vector(0, 0, 1), 4), False)
sketch32.addConstraint(Sketcher.Constraint("Coincident", 0, 3, -1, 1))
sketch32.addConstraint(Sketcher.Constraint("Diameter", 0, 8.0))
pad12 = body4.newObject("PartDesign::Pad", "Pad011")
pad12.Profile = sketch32
pad12.Length = 3.3
pad12.Reversed = True

sketch33 = body4.newObject("Sketcher::SketchObject", "Sketch032")
sketch33.AttachmentSupport = (doc.getObject("XY_Plane003"), [""])
sketch33.MapMode = "FlatFace"
sketch33.AttachmentOffset = App.Placement(Vector(0, 0, 1), App.Rotation())
add_polygon(sketch33, [(-7, 7), (-7, -7), (7, -7), (7, 7)])
sketch33.addConstraint(Sketcher.Constraint("Vertical", 0))
sketch33.addConstraint(Sketcher.Constraint("Horizontal", 1))
sketch33.addConstraint(Sketcher.Constraint("Vertical", 2))
sketch33.addConstraint(Sketcher.Constraint("Horizontal", 3))
sketch33.addConstraint(Sketcher.Constraint("Symmetric", 0, 2, 2, 2, -1, 1))
sketch33.addConstraint(Sketcher.Constraint("Equal", 3, 0))
sketch33.addConstraint(Sketcher.Constraint("DistanceX", 1, 1, 1, 2, 14.0))

sketch34 = body4.newObject("Sketcher::SketchObject", "Sketch033")
sketch34.AttachmentSupport = (doc.getObject("XY_Plane003"), [""])
sketch34.MapMode = "FlatFace"
sketch34.AttachmentOffset = App.Placement(Vector(0, 0, 6.6), App.Rotation())
add_polygon(sketch34, [(-4, 4), (-4, -4), (4, -4), (4, 4)])
sketch34.addConstraint(Sketcher.Constraint("Vertical", 0))
sketch34.addConstraint(Sketcher.Constraint("Horizontal", 1))
sketch34.addConstraint(Sketcher.Constraint("Vertical", 2))
sketch34.addConstraint(Sketcher.Constraint("Horizontal", 3))
sketch34.addConstraint(Sketcher.Constraint("Symmetric", 0, 2, 2, 2, -1, 1))
sketch34.addConstraint(Sketcher.Constraint("Equal", 3, 0))
sketch34.addConstraint(Sketcher.Constraint("DistanceX", 1, 1, 1, 2, 8.0))

additiveloft11 = body4.newObject("PartDesign::AdditiveLoft", "AdditiveLoft010")
additiveloft11.Profile = sketch33
additiveloft11.Sections = [sketch34]

sketch35 = body4.newObject("Sketcher::SketchObject", "Sketch034")
sketch35.AttachmentSupport = (doc.getObject("XY_Plane003"), [""])
sketch35.MapMode = "FlatFace"
sketch35.AttachmentOffset = App.Placement(Vector(0, 0, 17), App.Rotation())
add_polygon(sketch35, [(-6, 6), (-6, -6), (6, -6), (6, 6)])
sketch35.addConstraint(Sketcher.Constraint("Vertical", 0))
sketch35.addConstraint(Sketcher.Constraint("Horizontal", 1))
sketch35.addConstraint(Sketcher.Constraint("Vertical", 2))
sketch35.addConstraint(Sketcher.Constraint("Horizontal", 3))
sketch35.addConstraint(Sketcher.Constraint("Symmetric", 0, 2, 2, 2, -1, 1))
sketch35.addConstraint(Sketcher.Constraint("Equal", 3, 0))
sketch35.addConstraint(Sketcher.Constraint("DistanceX", 1, 1, 1, 2, 12.37))

sketch36 = body4.newObject("Sketcher::SketchObject", "Sketch035")
sketch36.AttachmentSupport = (doc.getObject("XY_Plane003"), [""])
sketch36.MapMode = "FlatFace"
sketch36.AttachmentOffset = App.Placement(Vector(0, 0, 5.61), App.Rotation())
add_polygon(sketch36, [(-9, 9), (-9, -9), (9, -9), (9, 9)])
sketch36.addConstraint(Sketcher.Constraint("Vertical", 0))
sketch36.addConstraint(Sketcher.Constraint("Horizontal", 1))
sketch36.addConstraint(Sketcher.Constraint("Vertical", 2))
sketch36.addConstraint(Sketcher.Constraint("Horizontal", 3))
sketch36.addConstraint(Sketcher.Constraint("Symmetric", 0, 2, 2, 2, -1, 1))
sketch36.addConstraint(Sketcher.Constraint("Equal", 3, 0))
sketch36.addConstraint(Sketcher.Constraint("DistanceX", 1, 1, 1, 2, 18.1))

additiveloft12 = body4.newObject("PartDesign::AdditiveLoft", "AdditiveLoft011")
additiveloft12.Profile = sketch35
additiveloft12.Sections = [sketch36]
body5 = doc.addObject("PartDesign::Body", "Body004")

sketch37 = body5.newObject("Sketcher::SketchObject", "Sketch036")
sketch37.AttachmentSupport = (doc.getObject("XY_Plane004"), [""])
sketch37.MapMode = "FlatFace"
add_polygon(sketch37, [(-8, 8), (-8, -8), (8, -8), (8, 8)])
sketch37.addConstraint(Sketcher.Constraint("Vertical", 0))
sketch37.addConstraint(Sketcher.Constraint("Horizontal", 1))
sketch37.addConstraint(Sketcher.Constraint("Vertical", 2))
sketch37.addConstraint(Sketcher.Constraint("Horizontal", 3))
sketch37.addConstraint(Sketcher.Constraint("Symmetric", 0, 2, 2, 2, -1, 1))
sketch37.addConstraint(Sketcher.Constraint("Equal", 3, 0))
sketch37.addConstraint(Sketcher.Constraint("DistanceX", 1, 1, 1, 2, 15.6))
pad13 = body5.newObject("PartDesign::Pad", "Pad012")
pad13.Profile = sketch37
pad13.Length = 1

sketch38 = body5.newObject("Sketcher::SketchObject", "Sketch037")
sketch38.AttachmentSupport = (doc.getObject("XY_Plane004"), [""])
sketch38.MapMode = "FlatFace"
add_polygon(sketch38, [(-7, 7), (-7, -7), (7, -7), (7, 7)])
sketch38.addConstraint(Sketcher.Constraint("Vertical", 0))
sketch38.addConstraint(Sketcher.Constraint("Horizontal", 1))
sketch38.addConstraint(Sketcher.Constraint("Vertical", 2))
sketch38.addConstraint(Sketcher.Constraint("Horizontal", 3))
sketch38.addConstraint(Sketcher.Constraint("Symmetric", 0, 2, 2, 2, -1, 1))
sketch38.addConstraint(Sketcher.Constraint("Equal", 3, 0))
sketch38.addConstraint(Sketcher.Constraint("DistanceX", 1, 1, 1, 2, 14.0))
pad14 = body5.newObject("PartDesign::Pad", "Pad013")
pad14.Profile = sketch38
pad14.Length = 2.5
pad14.Reversed = True

sketch39 = body5.newObject("Sketcher::SketchObject", "Sketch038")
sketch39.AttachmentSupport = (doc.getObject("XY_Plane004"), [""])
sketch39.MapMode = "FlatFace"
sketch39.AttachmentOffset = App.Placement(Vector(0, 0, -5), App.Rotation())
add_polygon(sketch39, [(-5, -5), (-5, 5), (5, 5), (5, -5)])
sketch39.addConstraint(Sketcher.Constraint("Vertical", 0))
sketch39.addConstraint(Sketcher.Constraint("Horizontal", 1))
sketch39.addConstraint(Sketcher.Constraint("Vertical", 2))
sketch39.addConstraint(Sketcher.Constraint("Horizontal", 3))
sketch39.addConstraint(Sketcher.Constraint("Symmetric", 0, 2, 2, 2, -1, 1))
sketch39.addConstraint(Sketcher.Constraint("Equal", 3, 0))
sketch39.addConstraint(Sketcher.Constraint("DistanceX", 1, 1, 1, 2, 10.0))

sketch40 = body5.newObject("Sketcher::SketchObject", "Sketch039")
sketch40.AttachmentSupport = (doc.getObject("XY_Plane004"), [""])
sketch40.MapMode = "FlatFace"
sketch40.AttachmentOffset = App.Placement(Vector(0, 0, -2.5), App.Rotation())
add_polygon(sketch40, [(-7, -7), (-7, 7), (7, 7), (7, -7)])
sketch40.addConstraint(Sketcher.Constraint("Vertical", 0))
sketch40.addConstraint(Sketcher.Constraint("Horizontal", 1))
sketch40.addConstraint(Sketcher.Constraint("Vertical", 2))
sketch40.addConstraint(Sketcher.Constraint("Horizontal", 3))
sketch40.addConstraint(Sketcher.Constraint("Symmetric", 0, 2, 2, 2, -1, 1))
sketch40.addConstraint(Sketcher.Constraint("Equal", 3, 0))
sketch40.addConstraint(Sketcher.Constraint("DistanceX", 1, 1, 1, 2, 14.0))

additiveloft13 = body5.newObject("PartDesign::AdditiveLoft", "AdditiveLoft012")
additiveloft13.Profile = sketch39
additiveloft13.Sections = [sketch40]

sketch41 = body5.newObject("Sketcher::SketchObject", "Sketch040")
sketch41.AttachmentSupport = (doc.getObject("XY_Plane004"), [""])
sketch41.MapMode = "FlatFace"
sketch41.AttachmentOffset = App.Placement(Vector(0, 0, -5), App.Rotation())
sketch41.addGeometry(Part.Circle(Vector(0, 0, 0), Vector(0, 0, 1), 4), False)
sketch41.addConstraint(Sketcher.Constraint("Coincident", 0, 3, -1, 1))
sketch41.addConstraint(Sketcher.Constraint("Diameter", 0, 8.0))
pad15 = body5.newObject("PartDesign::Pad", "Pad014")
pad15.Profile = sketch41
pad15.Length = 3.3
pad15.Reversed = True

sketch42 = body5.newObject("Sketcher::SketchObject", "Sketch041")
sketch42.AttachmentSupport = (doc.getObject("XY_Plane004"), [""])
sketch42.MapMode = "FlatFace"
sketch42.AttachmentOffset = App.Placement(Vector(0, 0, 1), App.Rotation())
add_polygon(sketch42, [(-7, 7), (-7, -7), (7, -7), (7, 7)])
sketch42.addConstraint(Sketcher.Constraint("Vertical", 0))
sketch42.addConstraint(Sketcher.Constraint("Horizontal", 1))
sketch42.addConstraint(Sketcher.Constraint("Vertical", 2))
sketch42.addConstraint(Sketcher.Constraint("Horizontal", 3))
sketch42.addConstraint(Sketcher.Constraint("Symmetric", 0, 2, 2, 2, -1, 1))
sketch42.addConstraint(Sketcher.Constraint("Equal", 3, 0))
sketch42.addConstraint(Sketcher.Constraint("DistanceX", 1, 1, 1, 2, 14.0))

sketch43 = body5.newObject("Sketcher::SketchObject", "Sketch042")
sketch43.AttachmentSupport = (doc.getObject("XY_Plane004"), [""])
sketch43.MapMode = "FlatFace"
sketch43.AttachmentOffset = App.Placement(Vector(0, 0, 6.6), App.Rotation())
add_polygon(sketch43, [(-4, 4), (-4, -4), (4, -4), (4, 4)])
sketch43.addConstraint(Sketcher.Constraint("Vertical", 0))
sketch43.addConstraint(Sketcher.Constraint("Horizontal", 1))
sketch43.addConstraint(Sketcher.Constraint("Vertical", 2))
sketch43.addConstraint(Sketcher.Constraint("Horizontal", 3))
sketch43.addConstraint(Sketcher.Constraint("Symmetric", 0, 2, 2, 2, -1, 1))
sketch43.addConstraint(Sketcher.Constraint("Equal", 3, 0))
sketch43.addConstraint(Sketcher.Constraint("DistanceX", 1, 1, 1, 2, 8.0))

additiveloft14 = body5.newObject("PartDesign::AdditiveLoft", "AdditiveLoft013")
additiveloft14.Profile = sketch42
additiveloft14.Sections = [sketch43]

sketch44 = body5.newObject("Sketcher::SketchObject", "Sketch043")
sketch44.AttachmentSupport = (doc.getObject("XY_Plane004"), [""])
sketch44.MapMode = "FlatFace"
sketch44.AttachmentOffset = App.Placement(Vector(0, 0, 17), App.Rotation())
add_polygon(sketch44, [(-15, 6), (-15, -6), (15, -6), (15, 6)])
sketch44.addConstraint(Sketcher.Constraint("Vertical", 0))
sketch44.addConstraint(Sketcher.Constraint("Horizontal", 1))
sketch44.addConstraint(Sketcher.Constraint("Vertical", 2))
sketch44.addConstraint(Sketcher.Constraint("Horizontal", 3))
sketch44.addConstraint(Sketcher.Constraint("Symmetric", 0, 2, 2, 2, -1, 1))
sketch44.addConstraint(Sketcher.Constraint("DistanceX", 1, 1, 1, 2, 30.47))
sketch44.addConstraint(Sketcher.Constraint("DistanceY", 0, 2, 0, 1, 12.37))

sketch45 = body5.newObject("Sketcher::SketchObject", "Sketch044")
sketch45.AttachmentSupport = (doc.getObject("XY_Plane004"), [""])
sketch45.MapMode = "FlatFace"
sketch45.AttachmentOffset = App.Placement(Vector(0, 0, 5.61), App.Rotation())
add_polygon(sketch45, [(-18, 9), (-18, -9), (18, -9), (18, 9)])
sketch45.addConstraint(Sketcher.Constraint("Vertical", 0))
sketch45.addConstraint(Sketcher.Constraint("Horizontal", 1))
sketch45.addConstraint(Sketcher.Constraint("Vertical", 2))
sketch45.addConstraint(Sketcher.Constraint("Horizontal", 3))
sketch45.addConstraint(Sketcher.Constraint("Symmetric", 0, 2, 2, 2, -1, 1))
sketch45.addConstraint(Sketcher.Constraint("DistanceX", 1, 1, 1, 2, 36.4))
sketch45.addConstraint(Sketcher.Constraint("DistanceY", 0, 2, 0, 1, 18.1))

additiveloft15 = body5.newObject("PartDesign::AdditiveLoft", "AdditiveLoft014")
additiveloft15.Profile = sketch44
additiveloft15.Sections = [sketch45]

doc.recompute()
